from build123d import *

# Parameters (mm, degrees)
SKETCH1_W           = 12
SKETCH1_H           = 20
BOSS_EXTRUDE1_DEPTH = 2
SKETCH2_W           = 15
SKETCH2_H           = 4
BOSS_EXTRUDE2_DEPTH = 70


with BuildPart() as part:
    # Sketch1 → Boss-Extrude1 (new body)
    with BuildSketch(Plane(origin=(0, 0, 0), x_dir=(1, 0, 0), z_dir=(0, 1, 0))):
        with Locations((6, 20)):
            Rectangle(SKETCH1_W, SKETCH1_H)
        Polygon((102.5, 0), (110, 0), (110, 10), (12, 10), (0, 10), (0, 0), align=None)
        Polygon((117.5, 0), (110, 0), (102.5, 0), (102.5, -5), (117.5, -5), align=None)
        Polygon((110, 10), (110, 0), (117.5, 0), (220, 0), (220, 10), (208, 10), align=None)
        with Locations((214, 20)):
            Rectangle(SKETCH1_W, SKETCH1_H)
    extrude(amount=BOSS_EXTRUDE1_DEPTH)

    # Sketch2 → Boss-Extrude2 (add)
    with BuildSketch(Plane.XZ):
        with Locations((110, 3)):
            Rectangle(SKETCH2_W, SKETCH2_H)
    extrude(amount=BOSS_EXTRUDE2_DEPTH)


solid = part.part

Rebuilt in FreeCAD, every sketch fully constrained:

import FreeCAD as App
import Part
import Sketcher
from FreeCAD import Vector

doc = App.newDocument("Part")
body = doc.addObject("PartDesign::Body", "Body")

# Sketch on XZ plane
sketch1 = body.newObject("Sketcher::SketchObject", "Sketch")
sketch1.AttachmentSupport = (doc.getObject("XZ_Plane"), [""])
sketch1.MapMode = "FlatFace"
sketch1.addGeometry([
    Part.LineSegment(Vector(0, -30, 0), Vector(0, 0, 0)),  # 0
    Part.LineSegment(Vector(0, 0, 0), Vector(102, 0, 0)),  # 1
    Part.LineSegment(Vector(102, 0, 0), Vector(102, 5, 0)),  # 2
    Part.LineSegment(Vector(102, 5, 0), Vector(118, 5, 0)),  # 3
    Part.LineSegment(Vector(118, 5, 0), Vector(118, 0, 0)),  # 4
    Part.LineSegment(Vector(118, 0, 0), Vector(220, 0, 0)),  # 5
    Part.LineSegment(Vector(220, 0, 0), Vector(220, -30, 0)),  # 6
    Part.LineSegment(Vector(220, -30, 0), Vector(208, -30, 0)),  # 7
    Part.LineSegment(Vector(208, -30, 0), Vector(208, -10, 0)),  # 8
    Part.LineSegment(Vector(208, -10, 0), Vector(12, -10, 0)),  # 9
    Part.LineSegment(Vector(12, -10, 0), Vector(12, -30, 0)),  # 10
    Part.LineSegment(Vector(12, -30, 0), Vector(0, -30, 0)),  # 11
], False)
sketch1.addConstraint([
    Sketcher.Constraint("Coincident", 0, 2, 1, 1),
    Sketcher.Constraint("Coincident", 1, 2, 2, 1),
    Sketcher.Constraint("Coincident", 2, 2, 3, 1),
    Sketcher.Constraint("Coincident", 3, 2, 4, 1),
    Sketcher.Constraint("Coincident", 4, 2, 5, 1),
    Sketcher.Constraint("Coincident", 5, 2, 6, 1),
    Sketcher.Constraint("Coincident", 6, 2, 7, 1),
    Sketcher.Constraint("Coincident", 7, 2, 8, 1),
    Sketcher.Constraint("Coincident", 8, 2, 9, 1),
    Sketcher.Constraint("Coincident", 9, 2, 10, 1),
    Sketcher.Constraint("Coincident", 10, 2, 11, 1),
    Sketcher.Constraint("Coincident", 11, 2, 0, 1),
    Sketcher.Constraint("Vertical", 0),
    Sketcher.Constraint("Horizontal", 1),
    Sketcher.Constraint("Vertical", 2),
    Sketcher.Constraint("Horizontal", 3),
    Sketcher.Constraint("Vertical", 4),
    Sketcher.Constraint("Horizontal", 5),
    Sketcher.Constraint("Vertical", 6),
    Sketcher.Constraint("Horizontal", 7),
    Sketcher.Constraint("Vertical", 8),
    Sketcher.Constraint("Horizontal", 9),
    Sketcher.Constraint("Vertical", 10),
    Sketcher.Constraint("Horizontal", 11),
    Sketcher.Constraint("Coincident", 0, 2, -1, 1),
    Sketcher.Constraint("PointOnObject", 4, 2, -1),
    Sketcher.Constraint("Horizontal", 7, 2, 10, 2),
    Sketcher.Constraint("Equal", 1, 5),
    Sketcher.Constraint("Equal", 7, 11),
    Sketcher.Constraint("DistanceX", 3, 1, 3, 2, 15.0),
    Sketcher.Constraint("DistanceX", 7, 2, 7, 1, 12.0),
    Sketcher.Constraint("DistanceX", 9, 2, 9, 1, 196.0),
    Sketcher.Constraint("DistanceY", 0, 1, 0, 2, 30.0),
    Sketcher.Constraint("DistanceY", 2, 1, 2, 2, 5.0),
    Sketcher.Constraint("DistanceY", 8, 1, 8, 2, 20.0),
])
pad1 = body.newObject("PartDesign::Pad", "Pad")
pad1.Profile = sketch1
pad1.Length = 2
pad1.Reversed = True

# Sketch on XZ plane
sketch2 = body.newObject("Sketcher::SketchObject", "Sketch001")
sketch2.AttachmentSupport = (doc.getObject("XZ_Plane"), [""])
sketch2.MapMode = "FlatFace"
sketch2.addGeometry([
    Part.LineSegment(Vector(102.5, 5, 0), Vector(102.5, 1, 0)),
    Part.LineSegment(Vector(102.5, 1, 0), Vector(117.5, 1, 0)),
    Part.LineSegment(Vector(117.5, 1, 0), Vector(117.5, 5, 0)),
    Part.LineSegment(Vector(117.5, 5, 0), Vector(102.5, 5, 0)),
], False)
sketch2.addConstraint([
    Sketcher.Constraint("Coincident", 0, 2, 1, 1),
    Sketcher.Constraint("Coincident", 1, 2, 2, 1),
    Sketcher.Constraint("Coincident", 2, 2, 3, 1),
    Sketcher.Constraint("Coincident", 3, 2, 0, 1),
    Sketcher.Constraint("Vertical", 0),
    Sketcher.Constraint("Horizontal", 1),
    Sketcher.Constraint("Vertical", 2),
    Sketcher.Constraint("Horizontal", 3),
    Sketcher.Constraint("DistanceX", 1, 1, 1, 2, 15.0),
    Sketcher.Constraint("DistanceY", 0, 2, 0, 1, 4.0),
    Sketcher.Constraint("DistanceY", -1, 1, 0, 2, 1.0),
    Sketcher.Constraint("DistanceX", -1, 1, 0, 2, 102.5),
])
pad2 = body.newObject("PartDesign::Pad", "Pad001")
pad2.Profile = sketch2
pad2.Length = 70

doc.recompute()
